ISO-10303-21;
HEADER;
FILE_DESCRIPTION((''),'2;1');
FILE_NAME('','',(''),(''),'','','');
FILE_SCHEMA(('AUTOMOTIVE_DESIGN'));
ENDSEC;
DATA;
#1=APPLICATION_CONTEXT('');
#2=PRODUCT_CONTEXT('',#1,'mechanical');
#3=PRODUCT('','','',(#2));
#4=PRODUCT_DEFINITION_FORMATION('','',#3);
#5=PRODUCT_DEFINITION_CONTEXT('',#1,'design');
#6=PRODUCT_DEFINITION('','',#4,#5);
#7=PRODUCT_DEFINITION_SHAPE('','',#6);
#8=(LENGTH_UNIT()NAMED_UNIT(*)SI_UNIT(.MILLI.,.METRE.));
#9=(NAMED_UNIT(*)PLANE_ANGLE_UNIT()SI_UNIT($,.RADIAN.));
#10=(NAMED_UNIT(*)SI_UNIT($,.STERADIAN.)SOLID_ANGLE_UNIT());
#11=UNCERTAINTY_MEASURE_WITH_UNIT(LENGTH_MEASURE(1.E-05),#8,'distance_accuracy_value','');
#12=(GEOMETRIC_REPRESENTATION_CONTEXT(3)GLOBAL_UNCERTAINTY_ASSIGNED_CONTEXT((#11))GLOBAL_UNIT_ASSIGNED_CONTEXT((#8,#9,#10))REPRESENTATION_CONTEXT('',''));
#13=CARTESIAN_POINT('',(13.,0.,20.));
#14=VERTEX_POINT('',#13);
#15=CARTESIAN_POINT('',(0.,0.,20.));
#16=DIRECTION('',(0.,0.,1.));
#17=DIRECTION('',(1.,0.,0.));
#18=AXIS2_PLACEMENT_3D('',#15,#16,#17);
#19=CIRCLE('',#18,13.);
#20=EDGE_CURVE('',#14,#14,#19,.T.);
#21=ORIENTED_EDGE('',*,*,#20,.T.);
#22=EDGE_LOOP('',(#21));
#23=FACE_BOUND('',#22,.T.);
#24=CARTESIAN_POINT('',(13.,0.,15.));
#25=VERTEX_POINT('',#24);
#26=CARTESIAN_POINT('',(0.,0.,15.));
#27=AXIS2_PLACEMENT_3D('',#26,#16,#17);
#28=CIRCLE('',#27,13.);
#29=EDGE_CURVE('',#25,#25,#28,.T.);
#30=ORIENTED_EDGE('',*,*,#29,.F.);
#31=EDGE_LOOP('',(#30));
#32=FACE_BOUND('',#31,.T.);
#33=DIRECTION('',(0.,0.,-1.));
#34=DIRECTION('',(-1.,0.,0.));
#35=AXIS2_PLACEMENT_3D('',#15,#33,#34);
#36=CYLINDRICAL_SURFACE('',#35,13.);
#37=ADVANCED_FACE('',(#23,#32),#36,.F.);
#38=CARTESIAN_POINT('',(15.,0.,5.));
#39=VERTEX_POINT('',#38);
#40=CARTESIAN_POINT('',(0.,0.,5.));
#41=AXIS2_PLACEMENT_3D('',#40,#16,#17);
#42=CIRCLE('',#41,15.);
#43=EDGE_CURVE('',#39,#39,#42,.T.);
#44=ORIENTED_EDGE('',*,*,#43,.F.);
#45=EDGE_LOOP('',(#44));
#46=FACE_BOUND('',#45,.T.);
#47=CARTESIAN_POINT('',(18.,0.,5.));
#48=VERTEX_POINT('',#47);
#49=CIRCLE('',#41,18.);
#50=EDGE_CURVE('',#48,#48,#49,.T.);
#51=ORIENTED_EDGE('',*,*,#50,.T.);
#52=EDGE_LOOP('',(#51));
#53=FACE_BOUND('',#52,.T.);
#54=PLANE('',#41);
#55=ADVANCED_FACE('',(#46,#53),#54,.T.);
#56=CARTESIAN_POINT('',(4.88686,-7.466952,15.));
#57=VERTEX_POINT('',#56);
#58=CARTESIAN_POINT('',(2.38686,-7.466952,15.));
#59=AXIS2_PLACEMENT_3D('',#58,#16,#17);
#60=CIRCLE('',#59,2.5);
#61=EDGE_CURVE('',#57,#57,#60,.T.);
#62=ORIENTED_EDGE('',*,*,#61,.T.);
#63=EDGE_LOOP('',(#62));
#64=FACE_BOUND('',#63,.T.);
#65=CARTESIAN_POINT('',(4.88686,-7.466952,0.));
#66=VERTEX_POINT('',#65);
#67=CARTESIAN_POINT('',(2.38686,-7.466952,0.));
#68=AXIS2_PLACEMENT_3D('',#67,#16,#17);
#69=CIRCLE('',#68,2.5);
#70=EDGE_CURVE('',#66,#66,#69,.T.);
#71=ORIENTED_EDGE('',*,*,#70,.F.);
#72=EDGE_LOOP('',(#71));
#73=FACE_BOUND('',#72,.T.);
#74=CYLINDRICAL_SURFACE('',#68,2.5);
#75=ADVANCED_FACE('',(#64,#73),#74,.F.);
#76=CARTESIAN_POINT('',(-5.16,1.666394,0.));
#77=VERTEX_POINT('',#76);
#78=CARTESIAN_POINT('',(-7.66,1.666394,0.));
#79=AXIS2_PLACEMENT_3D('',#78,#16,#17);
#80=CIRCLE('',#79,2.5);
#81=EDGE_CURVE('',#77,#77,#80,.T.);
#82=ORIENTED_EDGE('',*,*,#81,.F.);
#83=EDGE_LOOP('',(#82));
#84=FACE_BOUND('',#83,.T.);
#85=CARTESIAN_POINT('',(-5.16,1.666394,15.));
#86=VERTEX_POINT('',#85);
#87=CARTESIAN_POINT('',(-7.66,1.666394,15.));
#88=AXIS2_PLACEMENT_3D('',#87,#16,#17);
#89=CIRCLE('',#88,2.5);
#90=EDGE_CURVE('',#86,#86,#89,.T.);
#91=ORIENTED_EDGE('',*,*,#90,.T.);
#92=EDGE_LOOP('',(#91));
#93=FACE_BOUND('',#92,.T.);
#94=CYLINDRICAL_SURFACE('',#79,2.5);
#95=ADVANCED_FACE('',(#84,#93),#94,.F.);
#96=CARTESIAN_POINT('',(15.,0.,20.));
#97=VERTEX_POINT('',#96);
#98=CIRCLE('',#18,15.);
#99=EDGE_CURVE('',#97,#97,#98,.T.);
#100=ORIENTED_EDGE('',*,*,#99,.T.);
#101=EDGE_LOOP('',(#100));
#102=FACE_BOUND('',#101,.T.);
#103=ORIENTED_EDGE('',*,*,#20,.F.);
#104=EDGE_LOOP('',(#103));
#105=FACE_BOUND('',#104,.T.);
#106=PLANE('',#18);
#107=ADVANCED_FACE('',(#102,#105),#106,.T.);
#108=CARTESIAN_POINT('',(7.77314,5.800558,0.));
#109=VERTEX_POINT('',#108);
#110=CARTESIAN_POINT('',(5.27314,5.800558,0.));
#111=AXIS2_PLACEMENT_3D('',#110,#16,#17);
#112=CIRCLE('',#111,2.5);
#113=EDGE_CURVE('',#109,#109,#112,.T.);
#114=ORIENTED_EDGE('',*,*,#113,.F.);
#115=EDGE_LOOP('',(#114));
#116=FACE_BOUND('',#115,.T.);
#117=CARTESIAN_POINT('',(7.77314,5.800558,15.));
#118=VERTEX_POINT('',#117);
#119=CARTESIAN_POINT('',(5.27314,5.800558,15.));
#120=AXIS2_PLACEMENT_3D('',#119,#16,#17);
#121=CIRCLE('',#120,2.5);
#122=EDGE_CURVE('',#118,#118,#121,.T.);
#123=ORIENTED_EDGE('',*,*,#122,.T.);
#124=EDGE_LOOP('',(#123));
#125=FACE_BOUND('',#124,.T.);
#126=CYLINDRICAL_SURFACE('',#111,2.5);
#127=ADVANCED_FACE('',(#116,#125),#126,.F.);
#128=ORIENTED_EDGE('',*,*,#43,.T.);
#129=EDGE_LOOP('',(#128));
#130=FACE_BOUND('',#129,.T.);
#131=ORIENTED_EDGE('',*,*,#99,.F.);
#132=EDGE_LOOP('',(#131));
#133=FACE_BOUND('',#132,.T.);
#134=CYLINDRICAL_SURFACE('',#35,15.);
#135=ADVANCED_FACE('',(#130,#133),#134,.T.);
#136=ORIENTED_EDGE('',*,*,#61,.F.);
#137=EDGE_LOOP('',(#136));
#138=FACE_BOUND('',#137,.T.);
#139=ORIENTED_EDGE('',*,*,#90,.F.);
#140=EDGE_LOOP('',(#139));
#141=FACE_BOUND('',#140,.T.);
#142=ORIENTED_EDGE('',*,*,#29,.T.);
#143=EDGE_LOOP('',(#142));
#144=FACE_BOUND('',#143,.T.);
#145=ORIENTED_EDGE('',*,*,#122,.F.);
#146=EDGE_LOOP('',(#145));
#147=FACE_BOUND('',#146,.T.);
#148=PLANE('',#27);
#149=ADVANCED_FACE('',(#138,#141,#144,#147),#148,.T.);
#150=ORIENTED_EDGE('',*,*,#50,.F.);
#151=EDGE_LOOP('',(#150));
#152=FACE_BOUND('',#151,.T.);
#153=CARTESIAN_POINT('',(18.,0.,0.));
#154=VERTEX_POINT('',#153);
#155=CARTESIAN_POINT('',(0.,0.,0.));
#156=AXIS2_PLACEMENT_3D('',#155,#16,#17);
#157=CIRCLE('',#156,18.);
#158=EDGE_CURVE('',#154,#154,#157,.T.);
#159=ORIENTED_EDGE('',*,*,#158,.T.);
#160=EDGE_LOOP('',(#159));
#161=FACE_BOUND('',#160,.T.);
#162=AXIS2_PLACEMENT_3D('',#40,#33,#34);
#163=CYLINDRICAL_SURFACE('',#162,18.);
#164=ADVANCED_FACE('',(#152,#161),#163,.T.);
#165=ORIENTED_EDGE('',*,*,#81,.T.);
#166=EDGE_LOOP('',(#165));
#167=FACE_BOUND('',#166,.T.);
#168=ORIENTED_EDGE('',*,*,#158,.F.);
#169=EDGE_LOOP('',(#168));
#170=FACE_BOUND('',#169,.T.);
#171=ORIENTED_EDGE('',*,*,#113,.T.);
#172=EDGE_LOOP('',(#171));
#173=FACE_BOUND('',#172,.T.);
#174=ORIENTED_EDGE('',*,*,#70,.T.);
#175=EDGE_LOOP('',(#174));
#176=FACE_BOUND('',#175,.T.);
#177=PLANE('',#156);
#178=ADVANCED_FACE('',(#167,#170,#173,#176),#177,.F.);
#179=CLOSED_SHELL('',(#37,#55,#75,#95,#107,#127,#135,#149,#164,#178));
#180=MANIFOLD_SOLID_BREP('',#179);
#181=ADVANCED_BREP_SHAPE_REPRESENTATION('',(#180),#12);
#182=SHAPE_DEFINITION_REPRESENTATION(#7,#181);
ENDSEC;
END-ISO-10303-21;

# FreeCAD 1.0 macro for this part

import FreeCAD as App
import Part
import Sketcher

V = App.Vector
Q = App.Units.Quantity

doc = App.newDocument("Part")
params = doc.addObject("Spreadsheet::Sheet", "Params")
for row, (alias, value) in enumerate([
    ("sketch1_diameter", "36 mm"),
    ("sketch1_diameter2", "30 mm"),
    ("pad1_length", "5 mm"),
    ("sketch2_diameter", "30 mm"),
    ("sketch2_diameter2", "26 mm"),
    ("pad2_length", "20 mm"),
    ("sketch3_diameter", "26 mm"),
    ("pad3_length", "15 mm"),
    ("sketch4_diameter", "5 mm"),
], start=1):
    params.set(f"A{row}", alias)
    params.set(f"B{row}", "=" + value)
    params.setAlias(f"B{row}", alias)

body = doc.addObject("PartDesign::Body", "Body")

# Sketch on XY plane
sketch1 = body.newObject("Sketcher::SketchObject", "Sketch")
sketch1.AttachmentSupport = (doc.getObject("XY_Plane"), [""])
sketch1.MapMode = "FlatFace"
sketch1.addGeometry([
    Part.Circle(V(0, 0, 0), V(0, 0, 1), 18),
    Part.Circle(V(0, 0, 0), V(0, 0, 1), 15),
], False)
sketch1.addConstraint([
    Sketcher.Constraint("Coincident", 0, 3, -1, 1),
    Sketcher.Constraint("Coincident", 1, 3, -1, 1),
    Sketcher.Constraint("Diameter", 0, Q("36 mm")),
    Sketcher.Constraint("Diameter", 1, Q("30 mm")),
])
sketch1.setExpression("Constraints[2]", "Params.sketch1_diameter")
sketch1.setExpression("Constraints[3]", "Params.sketch1_diameter2")
pad1 = body.newObject("PartDesign::Pad", "Pad")
pad1.Profile = sketch1
pad1.setExpression("Length", "Params.pad1_length")

# Sketch on XY plane
sketch2 = body.newObject("Sketcher::SketchObject", "Sketch001")
sketch2.AttachmentSupport = (doc.getObject("XY_Plane"), [""])
sketch2.MapMode = "FlatFace"
sketch2.addGeometry([
    Part.Circle(V(0, 0, 0), V(0, 0, 1), 15),
    Part.Circle(V(0, 0, 0), V(0, 0, 1), 13),
], False)
sketch2.addConstraint([
    Sketcher.Constraint("Coincident", 0, 3, -1, 1),
    Sketcher.Constraint("Coincident", 1, 3, -1, 1),
    Sketcher.Constraint("Diameter", 0, Q("30 mm")),
    Sketcher.Constraint("Diameter", 1, Q("26 mm")),
])
sketch2.setExpression("Constraints[2]", "Params.sketch2_diameter")
sketch2.setExpression("Constraints[3]", "Params.sketch2_diameter2")
pad2 = body.newObject("PartDesign::Pad", "Pad001")
pad2.Profile = sketch2
pad2.setExpression("Length", "Params.pad2_length")

# Sketch on XY plane
sketch3 = body.newObject("Sketcher::SketchObject", "Sketch002")
sketch3.AttachmentSupport = (doc.getObject("XY_Plane"), [""])
sketch3.MapMode = "FlatFace"
sketch3.addGeometry(Part.Circle(V(0, 0, 0), V(0, 0, 1), 13), False)
sketch3.addConstraint([
    Sketcher.Constraint("Coincident", 0, 3, -1, 1),
    Sketcher.Constraint("Diameter", 0, Q("26 mm")),
])
sketch3.setExpression("Constraints[1]", "Params.sketch3_diameter")
pad3 = body.newObject("PartDesign::Pad", "Pad002")
pad3.Profile = sketch3
pad3.setExpression("Length", "Params.pad3_length")

# Sketch on XY plane
sketch4 = body.newObject("Sketcher::SketchObject", "Sketch003")
sketch4.AttachmentSupport = (doc.getObject("XY_Plane"), [""])
sketch4.MapMode = "FlatFace"
sketch4.AttachmentOffset = App.Placement(V(0, 0, 15), App.Rotation())
sketch4.addGeometry([
    Part.Circle(V(-7.7, 1.7, 0), V(0, 0, 1), 2.5),
    Part.Circle(V(5.3, 5.8, 0), V(0, 0, 1), 2.5),
    Part.Circle(V(2.4, -7.5, 0), V(0, 0, 1), 2.5),
], False)
sketch4.addConstraint([
    Sketcher.Constraint("Equal", 0, 1),
    Sketcher.Constraint("Equal", 1, 2),
    Sketcher.Constraint("Diameter", 0, Q("5 mm")),
    Sketcher.Constraint("DistanceX", 0, 3, -1, 1, Q("7.66 mm")),
    Sketcher.Constraint("DistanceX", -1, 1, 1, 3, Q("5.27314 mm")),
    Sketcher.Constraint("DistanceX", -1, 1, 2, 3, Q("2.38686 mm")),
    Sketcher.Constraint("DistanceY", 2, 3, -1, 1, Q("7.466952 mm")),
    Sketcher.Constraint("DistanceY", 2, 3, 1, 3, Q("13.267509 mm")),
    Sketcher.Constraint("DistanceY", -1, 1, 0, 3, Q("1.666394 mm")),
])
sketch4.setExpression("Constraints[2]", "Params.sketch4_diameter")
pocket1 = body.newObject("PartDesign::Pocket", "Pocket")
pocket1.Profile = sketch4
pocket1.Type = "ThroughAll"

doc.recompute()
